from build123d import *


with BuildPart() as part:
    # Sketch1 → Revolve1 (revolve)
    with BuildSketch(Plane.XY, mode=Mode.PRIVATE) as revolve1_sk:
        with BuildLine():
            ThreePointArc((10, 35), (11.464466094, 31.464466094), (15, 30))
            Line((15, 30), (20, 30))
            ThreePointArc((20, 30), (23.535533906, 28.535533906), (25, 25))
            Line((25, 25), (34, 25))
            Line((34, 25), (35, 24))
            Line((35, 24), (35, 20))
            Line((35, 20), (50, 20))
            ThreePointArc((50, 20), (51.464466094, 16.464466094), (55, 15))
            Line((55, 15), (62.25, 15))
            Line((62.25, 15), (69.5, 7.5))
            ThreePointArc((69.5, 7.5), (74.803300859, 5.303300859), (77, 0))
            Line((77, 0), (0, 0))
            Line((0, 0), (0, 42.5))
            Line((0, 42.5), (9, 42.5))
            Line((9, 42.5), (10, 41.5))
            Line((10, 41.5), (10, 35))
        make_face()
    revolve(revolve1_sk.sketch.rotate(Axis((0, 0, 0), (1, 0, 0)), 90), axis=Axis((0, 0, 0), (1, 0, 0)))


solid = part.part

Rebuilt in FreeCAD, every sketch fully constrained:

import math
import FreeCAD as App
import Part
import Sketcher

V = App.Vector
Q = App.Units.Quantity

doc = App.newDocument("Part")
params = doc.addObject("Spreadsheet::Sheet", "Params")
for row, (alias, value) in enumerate([
    ("sketch1_radius", "5 mm"),
    ("sketch1_radius2", "7.5 mm"),
    ("sketch1_width", "9 mm"),
    ("sketch1_width2", "77 mm"),
    ("sketch1_width3", "15 mm"),
    ("revolution_angle", "360 deg"),
], start=1):
    params.set(f"A{row}", alias)
    params.set(f"B{row}", "=" + value)
    params.setAlias(f"B{row}", alias)

body = doc.addObject("PartDesign::Body", "Body")

# Sketch on XY plane
sketch1 = doc.addObject("Sketcher::SketchObject", "Sketch")
body.addObject(sketch1)
sketch1.AttachmentSupport = (doc.XY_Plane, [""])
sketch1.MapMode = "FlatFace"
sketch1.addGeometry([
    Part.ArcOfCircle(Part.Circle(V(15, 35, 0), V(0, 0, 1), 5), math.radians(180), math.radians(270)),  # 0
    Part.LineSegment(V(10, 35, 0), V(10, 41.5, 0)),  # 1
    Part.LineSegment(V(10, 41.5, 0), V(9, 42.5, 0)),  # 2
    Part.LineSegment(V(9, 42.5, 0), V(0, 42.5, 0)),  # 3
    Part.LineSegment(V(0, 42.5, 0), V(0, 0, 0)),  # 4
    Part.LineSegment(V(0, 0, 0), V(77, 0, 0)),  # 5
    Part.ArcOfCircle(Part.Circle(V(69.5, 0, 0), V(0, 0, 1), 7.5), math.radians(0), math.radians(90)),  # 6
    Part.LineSegment(V(69.5, 7.5, 0), V(62.25, 15, 0)),  # 7
    Part.LineSegment(V(62.25, 15, 0), V(55, 15, 0)),  # 8
    Part.ArcOfCircle(Part.Circle(V(55, 20, 0), V(0, 0, 1), 5), math.radians(180), math.radians(270)),  # 9
    Part.LineSegment(V(50, 20, 0), V(35, 20, 0)),  # 10
    Part.LineSegment(V(35, 20, 0), V(35, 24, 0)),  # 11
    Part.LineSegment(V(35, 24, 0), V(34, 25, 0)),  # 12
    Part.LineSegment(V(34, 25, 0), V(25, 25, 0)),  # 13
    Part.ArcOfCircle(Part.Circle(V(20, 25, 0), V(0, 0, 1), 5), math.radians(0), math.radians(90)),  # 14
    Part.LineSegment(V(20, 30, 0), V(15, 30, 0)),  # 15
], False)
sketch1.addConstraint([
    Sketcher.Constraint("Tangent", 0, 1, 1, 1),
    Sketcher.Constraint("Coincident", 1, 2, 2, 1),
    Sketcher.Constraint("Coincident", 2, 2, 3, 1),
    Sketcher.Constraint("Coincident", 3, 2, 4, 1),
    Sketcher.Constraint("Coincident", 4, 2, 5, 1),
    Sketcher.Constraint("Coincident", 5, 2, 6, 1),
    Sketcher.Constraint("Coincident", 6, 2, 7, 1),
    Sketcher.Constraint("Coincident", 7, 2, 8, 1),
    Sketcher.Constraint("Tangent", 8, 2, 9, 2),
    Sketcher.Constraint("Coincident", 9, 1, 10, 1),
    Sketcher.Constraint("Coincident", 10, 2, 11, 1),
    Sketcher.Constraint("Coincident", 11, 2, 12, 1),
    Sketcher.Constraint("Coincident", 12, 2, 13, 1),
    Sketcher.Constraint("Coincident", 13, 2, 14, 1),
    Sketcher.Constraint("Tangent", 14, 2, 15, 1),
    Sketcher.Constraint("Tangent", 15, 2, 0, 2),
    Sketcher.Constraint("Vertical", 1),
    Sketcher.Constraint("Horizontal", 3),
    Sketcher.Constraint("Vertical", 4),
    Sketcher.Constraint("Horizontal", 5),
    Sketcher.Constraint("Horizontal", 8),
    Sketcher.Constraint("Horizontal", 10),
    Sketcher.Constraint("Vertical", 11),
    Sketcher.Constraint("Horizontal", 13),
    Sketcher.Constraint("Horizontal", 15),
    Sketcher.Constraint("Coincident", 4, 2, -1, 1),
    Sketcher.Constraint("Equal", 0, 9),
    Sketcher.Constraint("Equal", 9, 14),
    Sketcher.Constraint("PointOnObject", 6, 3, -1),
    Sketcher.Constraint("Parallel", 2, 12),
    Sketcher.Constraint("Horizontal", 14, 3, 12, 2),
    Sketcher.Constraint("Equal", 3, 13),
    Sketcher.Constraint("Equal", 2, 12),
    Sketcher.Constraint("Radius", 0, 5.0),
    Sketcher.Constraint("Radius", 6, 7.5),
    Sketcher.Constraint("DistanceX", 3, 2, 3, 1, 9.0),
    Sketcher.Constraint("DistanceX", 5, 1, 5, 2, 77.0),
    Sketcher.Constraint("DistanceX", 10, 2, 10, 1, 15.0),
    Sketcher.Constraint("DistanceX", 15, 2, 15, 1, 5.0),
    Sketcher.Constraint("DistanceY", 11, 1, 11, 2, 4.0),
    Sketcher.Constraint("Angle", 2, Q("135 deg")),
    Sketcher.Constraint("DistanceY", 1, 1, 1, 2, 6.5),
    Sketcher.Constraint("DistanceY", 4, 2, 4, 1, 42.5),
    Sketcher.Constraint("DistanceX", -1, 1, 0, 3, 15.0),
    Sketcher.Constraint("DistanceY", -1, 1, 9, 3, 20.0),
    Sketcher.Constraint("DistanceX", 8, 2, 8, 1, 7.25),
    Sketcher.Constraint("DistanceX", -1, 1, 6, 2, 69.5),
])
sketch1.setExpression("Constraints[33]", "Params.sketch1_radius")
sketch1.setExpression("Constraints[34]", "Params.sketch1_radius2")
sketch1.setExpression("Constraints[35]", "Params.sketch1_width")
sketch1.setExpression("Constraints[36]", "Params.sketch1_width2")
sketch1.setExpression("Constraints[37]", "Params.sketch1_width3")
revolution = doc.addObject("PartDesign::Revolution", "Revolution")
body.addObject(revolution)
revolution.Profile = sketch1
revolution.ReferenceAxis = (sketch1, ["H_Axis"])
revolution.setExpression("Angle", "Params.revolution_angle")

doc.recompute()
